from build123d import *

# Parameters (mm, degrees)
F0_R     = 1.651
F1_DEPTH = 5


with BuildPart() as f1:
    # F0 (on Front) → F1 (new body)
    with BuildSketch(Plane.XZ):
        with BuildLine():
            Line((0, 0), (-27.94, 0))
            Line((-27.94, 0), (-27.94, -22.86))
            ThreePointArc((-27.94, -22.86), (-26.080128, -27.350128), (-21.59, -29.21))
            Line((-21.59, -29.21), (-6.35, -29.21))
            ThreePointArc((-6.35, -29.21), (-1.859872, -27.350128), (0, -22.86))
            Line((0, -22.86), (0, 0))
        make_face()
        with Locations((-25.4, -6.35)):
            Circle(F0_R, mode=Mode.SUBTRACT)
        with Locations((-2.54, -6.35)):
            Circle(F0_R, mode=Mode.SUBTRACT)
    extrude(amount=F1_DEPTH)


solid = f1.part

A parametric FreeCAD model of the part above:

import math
import FreeCAD as App
import Part
import Sketcher
from FreeCAD import Vector
Q = App.Units.Quantity

doc = App.newDocument("Part")
body = doc.addObject("PartDesign::Body", "Body")

# Sketch on XZ plane
sketch1 = body.newObject("Sketcher::SketchObject", "Sketch")
sketch1.AttachmentSupport = (doc.getObject("XZ_Plane"), [""])
sketch1.MapMode = "FlatFace"
sketch1.addGeometry([
    Part.LineSegment(Vector(0, 0, 0), Vector(-27.94, 0, 0)),  # 0
    Part.LineSegment(Vector(-27.94, 0, 0), Vector(-27.94, -22.86, 0)),  # 1
    Part.ArcOfCircle(Part.Circle(Vector(-21.59, -22.86, 0), Vector(0, 0, 1), 6.35), math.radians(-179.999998), math.radians(-90.000002)),  # 2
    Part.LineSegment(Vector(-21.59, -29.21, 0), Vector(-6.35, -29.21, 0)),  # 3
    Part.ArcOfCircle(Part.Circle(Vector(-6.35, -22.86, 0), Vector(0, 0, 1), 6.35), math.radians(-89.999998), math.radians(-0.000002)),  # 4
    Part.LineSegment(Vector(0, -22.86, 0), Vector(0, 0, 0)),  # 5
    Part.Circle(Vector(-25.4, -6.35, 0), Vector(0, 0, 1), 1.651),  # 6
    Part.Circle(Vector(-2.54, -6.35, 0), Vector(0, 0, 1), 1.651),  # 7
], False)
sketch1.addConstraint([
    Sketcher.Constraint("Coincident", 0, 2, 1, 1),
    Sketcher.Constraint("Tangent", 1, 2, 2, 1),
    Sketcher.Constraint("Tangent", 2, 2, 3, 1),
    Sketcher.Constraint("Tangent", 3, 2, 4, 1),
    Sketcher.Constraint("Tangent", 4, 2, 5, 1),
    Sketcher.Constraint("Coincident", 5, 2, 0, 1),
    Sketcher.Constraint("Horizontal", 0),
    Sketcher.Constraint("Vertical", 1),
    Sketcher.Constraint("Horizontal", 3),
    Sketcher.Constraint("Vertical", 5),
    Sketcher.Constraint("Coincident", 5, 2, -1, 1),
    Sketcher.Constraint("Equal", 2, 4),
    Sketcher.Constraint("Equal", 6, 7),
    Sketcher.Constraint("Horizontal", 6, 3, 7, 3),
    Sketcher.Constraint("Diameter", 6, Q("0.13 in")),
    Sketcher.Constraint("Radius", 2, Q("0.25 in")),
    Sketcher.Constraint("DistanceX", 0, 2, 0, 1, Q("1.1 in")),
    Sketcher.Constraint("DistanceY", 1, 2, 1, 1, Q("0.9 in")),
    Sketcher.Constraint("DistanceX", 6, 3, -1, 1, Q("1 in")),
    Sketcher.Constraint("DistanceX", 0, 2, 7, 3, Q("1 in")),
    Sketcher.Constraint("DistanceY", 2, 2, 6, 3, Q("0.9 in")),
])
pad1 = body.newObject("PartDesign::Pad", "Pad")
pad1.Profile = sketch1
pad1.Length = 5

doc.recompute()
